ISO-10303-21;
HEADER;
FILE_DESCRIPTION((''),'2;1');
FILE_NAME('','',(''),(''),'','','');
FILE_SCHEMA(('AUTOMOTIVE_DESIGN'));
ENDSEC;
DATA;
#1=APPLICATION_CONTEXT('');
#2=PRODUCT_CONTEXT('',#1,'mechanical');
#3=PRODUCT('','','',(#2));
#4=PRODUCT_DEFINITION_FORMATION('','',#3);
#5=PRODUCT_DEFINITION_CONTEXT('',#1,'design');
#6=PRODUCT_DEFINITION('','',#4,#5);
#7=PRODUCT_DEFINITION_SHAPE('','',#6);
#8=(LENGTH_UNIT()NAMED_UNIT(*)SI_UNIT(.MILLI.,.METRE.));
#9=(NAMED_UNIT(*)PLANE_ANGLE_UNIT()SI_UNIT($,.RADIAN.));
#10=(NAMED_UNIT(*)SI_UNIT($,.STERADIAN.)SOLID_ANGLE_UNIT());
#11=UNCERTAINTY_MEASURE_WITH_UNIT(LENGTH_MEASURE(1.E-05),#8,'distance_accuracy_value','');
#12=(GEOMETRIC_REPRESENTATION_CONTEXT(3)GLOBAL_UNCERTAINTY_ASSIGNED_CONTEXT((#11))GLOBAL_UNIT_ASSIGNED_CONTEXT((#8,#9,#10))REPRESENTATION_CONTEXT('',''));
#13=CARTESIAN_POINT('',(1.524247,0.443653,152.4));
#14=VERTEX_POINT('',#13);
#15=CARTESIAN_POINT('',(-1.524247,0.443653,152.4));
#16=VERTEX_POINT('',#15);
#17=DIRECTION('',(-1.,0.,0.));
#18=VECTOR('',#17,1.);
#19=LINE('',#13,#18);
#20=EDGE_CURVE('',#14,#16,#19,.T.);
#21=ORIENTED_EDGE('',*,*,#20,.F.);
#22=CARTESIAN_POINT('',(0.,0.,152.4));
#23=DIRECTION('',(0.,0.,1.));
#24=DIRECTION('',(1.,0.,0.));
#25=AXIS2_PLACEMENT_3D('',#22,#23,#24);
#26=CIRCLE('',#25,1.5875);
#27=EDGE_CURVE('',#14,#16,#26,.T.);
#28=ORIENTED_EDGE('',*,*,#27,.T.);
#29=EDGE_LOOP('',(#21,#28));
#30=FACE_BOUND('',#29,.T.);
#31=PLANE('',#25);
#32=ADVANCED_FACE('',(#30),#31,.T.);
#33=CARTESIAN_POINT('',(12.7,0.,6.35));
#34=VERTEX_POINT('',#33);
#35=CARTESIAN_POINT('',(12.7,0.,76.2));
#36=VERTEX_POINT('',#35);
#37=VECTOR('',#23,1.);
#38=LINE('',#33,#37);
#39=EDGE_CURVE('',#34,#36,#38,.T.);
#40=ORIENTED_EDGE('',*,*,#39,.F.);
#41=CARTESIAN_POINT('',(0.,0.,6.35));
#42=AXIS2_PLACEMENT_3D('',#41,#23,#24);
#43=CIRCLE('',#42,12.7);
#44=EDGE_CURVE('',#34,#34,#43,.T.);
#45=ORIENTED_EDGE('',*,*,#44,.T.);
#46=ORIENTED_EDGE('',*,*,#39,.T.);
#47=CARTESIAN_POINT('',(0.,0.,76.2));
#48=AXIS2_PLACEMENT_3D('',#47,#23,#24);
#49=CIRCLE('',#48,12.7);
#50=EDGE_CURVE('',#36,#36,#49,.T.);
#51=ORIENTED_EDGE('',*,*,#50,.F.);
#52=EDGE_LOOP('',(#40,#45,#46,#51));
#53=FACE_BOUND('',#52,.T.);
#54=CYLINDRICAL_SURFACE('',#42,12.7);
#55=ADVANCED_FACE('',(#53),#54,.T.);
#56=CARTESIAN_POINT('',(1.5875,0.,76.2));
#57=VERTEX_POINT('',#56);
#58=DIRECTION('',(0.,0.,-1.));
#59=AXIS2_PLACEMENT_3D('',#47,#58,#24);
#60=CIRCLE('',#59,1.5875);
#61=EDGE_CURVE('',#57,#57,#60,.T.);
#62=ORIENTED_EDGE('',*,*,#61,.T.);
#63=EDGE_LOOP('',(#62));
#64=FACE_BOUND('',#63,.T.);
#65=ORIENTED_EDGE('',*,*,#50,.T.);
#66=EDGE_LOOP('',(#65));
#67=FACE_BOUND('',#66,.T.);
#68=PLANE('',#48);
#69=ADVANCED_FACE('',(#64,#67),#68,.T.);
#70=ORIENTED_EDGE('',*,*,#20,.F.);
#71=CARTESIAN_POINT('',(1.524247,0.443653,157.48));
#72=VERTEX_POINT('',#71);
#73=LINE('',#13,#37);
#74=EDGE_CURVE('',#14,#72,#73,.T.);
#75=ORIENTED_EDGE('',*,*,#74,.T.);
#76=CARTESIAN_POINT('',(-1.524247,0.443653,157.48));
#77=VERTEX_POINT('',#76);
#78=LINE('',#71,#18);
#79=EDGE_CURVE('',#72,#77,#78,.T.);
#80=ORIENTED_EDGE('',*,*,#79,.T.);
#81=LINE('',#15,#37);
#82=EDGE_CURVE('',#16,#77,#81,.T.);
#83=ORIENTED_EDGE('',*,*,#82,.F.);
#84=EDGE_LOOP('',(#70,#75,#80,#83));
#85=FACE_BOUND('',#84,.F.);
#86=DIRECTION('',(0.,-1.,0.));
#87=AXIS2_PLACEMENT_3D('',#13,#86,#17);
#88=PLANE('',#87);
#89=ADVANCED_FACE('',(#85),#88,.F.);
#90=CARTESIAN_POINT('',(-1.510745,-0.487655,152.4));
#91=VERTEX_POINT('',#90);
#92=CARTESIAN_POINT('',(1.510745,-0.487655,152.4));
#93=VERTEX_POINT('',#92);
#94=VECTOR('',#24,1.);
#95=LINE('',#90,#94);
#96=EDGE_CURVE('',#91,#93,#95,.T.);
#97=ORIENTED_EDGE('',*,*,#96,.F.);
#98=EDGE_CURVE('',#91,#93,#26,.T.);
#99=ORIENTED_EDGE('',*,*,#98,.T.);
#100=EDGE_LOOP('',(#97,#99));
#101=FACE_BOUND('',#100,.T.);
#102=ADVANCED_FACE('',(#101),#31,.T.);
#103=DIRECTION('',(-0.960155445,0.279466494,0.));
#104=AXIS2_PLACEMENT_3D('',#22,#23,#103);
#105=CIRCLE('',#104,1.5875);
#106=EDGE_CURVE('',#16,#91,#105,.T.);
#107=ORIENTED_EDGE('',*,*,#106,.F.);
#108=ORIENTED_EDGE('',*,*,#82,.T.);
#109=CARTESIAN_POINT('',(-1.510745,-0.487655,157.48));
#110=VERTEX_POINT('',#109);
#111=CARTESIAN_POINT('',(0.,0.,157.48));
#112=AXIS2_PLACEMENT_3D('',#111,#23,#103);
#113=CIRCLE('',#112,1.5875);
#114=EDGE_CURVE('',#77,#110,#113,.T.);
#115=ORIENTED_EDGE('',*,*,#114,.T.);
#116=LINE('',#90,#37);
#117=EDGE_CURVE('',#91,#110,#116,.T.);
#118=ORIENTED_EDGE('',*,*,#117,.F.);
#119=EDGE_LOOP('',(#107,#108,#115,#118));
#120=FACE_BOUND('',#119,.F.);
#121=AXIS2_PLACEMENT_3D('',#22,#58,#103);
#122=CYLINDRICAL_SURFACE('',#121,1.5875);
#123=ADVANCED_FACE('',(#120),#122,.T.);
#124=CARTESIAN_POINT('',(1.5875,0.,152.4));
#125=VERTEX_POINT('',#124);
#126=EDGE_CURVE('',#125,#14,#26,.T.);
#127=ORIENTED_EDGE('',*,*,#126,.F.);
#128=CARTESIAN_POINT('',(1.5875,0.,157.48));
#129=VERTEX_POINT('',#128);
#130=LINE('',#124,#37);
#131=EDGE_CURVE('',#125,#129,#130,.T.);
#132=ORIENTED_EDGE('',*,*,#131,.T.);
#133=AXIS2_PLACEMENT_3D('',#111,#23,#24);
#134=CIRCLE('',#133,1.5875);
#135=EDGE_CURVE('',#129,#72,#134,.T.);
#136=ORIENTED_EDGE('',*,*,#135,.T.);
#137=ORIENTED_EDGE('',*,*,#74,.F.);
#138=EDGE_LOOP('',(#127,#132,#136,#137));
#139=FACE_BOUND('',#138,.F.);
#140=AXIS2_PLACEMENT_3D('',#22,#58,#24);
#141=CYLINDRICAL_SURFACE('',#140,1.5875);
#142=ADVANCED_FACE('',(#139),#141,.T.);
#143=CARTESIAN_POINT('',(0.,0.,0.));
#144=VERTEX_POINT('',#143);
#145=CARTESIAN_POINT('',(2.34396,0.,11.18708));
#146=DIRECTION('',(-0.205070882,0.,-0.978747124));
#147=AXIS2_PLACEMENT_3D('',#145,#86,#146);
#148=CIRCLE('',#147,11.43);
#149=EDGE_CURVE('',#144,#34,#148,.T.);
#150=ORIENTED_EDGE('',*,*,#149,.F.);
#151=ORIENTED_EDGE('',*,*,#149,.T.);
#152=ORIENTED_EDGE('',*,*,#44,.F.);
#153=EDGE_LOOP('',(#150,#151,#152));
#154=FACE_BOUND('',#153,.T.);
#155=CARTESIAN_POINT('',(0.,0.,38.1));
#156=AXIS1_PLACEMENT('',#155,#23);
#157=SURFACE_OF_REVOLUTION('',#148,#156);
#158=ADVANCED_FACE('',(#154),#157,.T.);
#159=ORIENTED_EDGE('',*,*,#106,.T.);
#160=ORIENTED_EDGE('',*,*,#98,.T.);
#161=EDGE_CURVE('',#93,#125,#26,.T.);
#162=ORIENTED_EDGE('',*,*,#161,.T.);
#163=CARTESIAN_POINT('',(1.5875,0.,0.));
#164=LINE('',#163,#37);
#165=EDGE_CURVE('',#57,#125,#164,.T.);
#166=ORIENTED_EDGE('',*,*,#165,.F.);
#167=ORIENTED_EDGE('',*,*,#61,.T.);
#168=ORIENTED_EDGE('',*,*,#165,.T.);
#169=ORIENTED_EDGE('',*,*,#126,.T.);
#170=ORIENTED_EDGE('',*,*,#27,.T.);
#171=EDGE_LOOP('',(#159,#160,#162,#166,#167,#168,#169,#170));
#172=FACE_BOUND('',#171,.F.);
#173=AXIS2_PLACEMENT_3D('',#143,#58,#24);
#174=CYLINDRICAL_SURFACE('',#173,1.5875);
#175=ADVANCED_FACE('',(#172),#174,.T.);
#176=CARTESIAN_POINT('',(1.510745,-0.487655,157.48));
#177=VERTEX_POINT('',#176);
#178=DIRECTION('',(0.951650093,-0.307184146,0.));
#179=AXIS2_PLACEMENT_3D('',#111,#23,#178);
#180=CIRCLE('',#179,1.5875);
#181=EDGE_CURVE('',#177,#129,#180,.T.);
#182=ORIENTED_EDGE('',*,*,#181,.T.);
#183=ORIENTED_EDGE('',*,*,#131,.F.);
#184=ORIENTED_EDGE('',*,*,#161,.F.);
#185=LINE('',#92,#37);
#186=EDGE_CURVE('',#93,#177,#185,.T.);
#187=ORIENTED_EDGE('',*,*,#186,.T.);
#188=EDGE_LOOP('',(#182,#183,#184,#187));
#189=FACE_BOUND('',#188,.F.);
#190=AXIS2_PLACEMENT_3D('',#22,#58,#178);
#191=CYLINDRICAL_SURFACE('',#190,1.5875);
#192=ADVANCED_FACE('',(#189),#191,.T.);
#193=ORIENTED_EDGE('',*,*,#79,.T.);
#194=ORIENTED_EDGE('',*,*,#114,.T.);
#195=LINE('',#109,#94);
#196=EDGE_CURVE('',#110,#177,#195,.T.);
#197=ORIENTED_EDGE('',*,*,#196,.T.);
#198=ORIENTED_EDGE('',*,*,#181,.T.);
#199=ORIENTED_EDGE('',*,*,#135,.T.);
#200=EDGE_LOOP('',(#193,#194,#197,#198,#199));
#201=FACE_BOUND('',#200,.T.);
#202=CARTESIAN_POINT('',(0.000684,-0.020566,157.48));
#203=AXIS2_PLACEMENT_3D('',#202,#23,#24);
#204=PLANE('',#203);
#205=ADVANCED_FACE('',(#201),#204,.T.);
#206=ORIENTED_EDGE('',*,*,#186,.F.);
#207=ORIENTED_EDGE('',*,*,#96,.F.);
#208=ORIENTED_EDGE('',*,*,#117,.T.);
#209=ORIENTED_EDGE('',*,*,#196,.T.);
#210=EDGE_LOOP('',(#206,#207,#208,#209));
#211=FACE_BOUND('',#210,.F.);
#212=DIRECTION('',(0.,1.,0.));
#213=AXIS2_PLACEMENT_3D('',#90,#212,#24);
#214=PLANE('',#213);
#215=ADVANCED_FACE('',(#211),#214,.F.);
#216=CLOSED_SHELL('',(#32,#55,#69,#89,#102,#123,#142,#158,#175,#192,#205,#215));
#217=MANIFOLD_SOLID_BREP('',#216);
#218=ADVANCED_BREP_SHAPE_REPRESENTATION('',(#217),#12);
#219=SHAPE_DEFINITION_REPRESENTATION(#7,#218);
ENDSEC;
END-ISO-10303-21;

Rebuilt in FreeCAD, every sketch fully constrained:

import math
import FreeCAD as App
import Part
import Sketcher

V = App.Vector
Q = App.Units.Quantity

doc = App.newDocument("Part")
body = doc.addObject("PartDesign::Body", "Body")

# Sketch on XZ plane
sketch1 = doc.addObject("Sketcher::SketchObject", "Sketch")
body.addObject(sketch1)
sketch1.AttachmentSupport = (doc.XZ_Plane, [""])
sketch1.MapMode = "FlatFace"
sketch1.addGeometry([
    Part.LineSegment(V(0, 76, 0), V(0, 0, 0)),
    Part.ArcOfCircle(Part.Circle(V(2, 11, 0), V(0, 0, 1), 11), math.radians(-102), math.radians(-25)),
    Part.LineSegment(V(13, 6, 0), V(13, 76, 0)),
    Part.LineSegment(V(13, 76, 0), V(0, 76, 0)),
], False)
sketch1.addConstraint([
    Sketcher.Constraint("Coincident", 0, 2, 1, 1),
    Sketcher.Constraint("Coincident", 1, 2, 2, 1),
    Sketcher.Constraint("Coincident", 2, 2, 3, 1),
    Sketcher.Constraint("Coincident", 3, 2, 0, 1),
    Sketcher.Constraint("Vertical", 0),
    Sketcher.Constraint("Vertical", 2),
    Sketcher.Constraint("Horizontal", 3),
    Sketcher.Constraint("Coincident", 0, 2, -1, 1),
    Sketcher.Constraint("DistanceY", 0, 2, 0, 1, Q("3 in")),
    Sketcher.Constraint("Radius", 1, Q("0.45 in")),
    Sketcher.Constraint("DistanceX", 3, 2, 3, 1, Q("0.5 in")),
    Sketcher.Constraint("DistanceY", 2, 1, 2, 2, Q("2.75 in")),
])
revolution = doc.addObject("PartDesign::Revolution", "Revolution")
body.addObject(revolution)
revolution.Profile = sketch1
revolution.ReferenceAxis = (sketch1, ["V_Axis"])
revolution.Angle = 360

# Sketch on XY plane
sketch2 = doc.addObject("Sketcher::SketchObject", "Sketch001")
body.addObject(sketch2)
sketch2.AttachmentSupport = (doc.XY_Plane, [""])
sketch2.MapMode = "FlatFace"
sketch2.addGeometry(Part.Circle(V(0, 0, 0), V(0, 0, 1), 1.6), False)
sketch2.addConstraint([
    Sketcher.Constraint("Coincident", 0, 3, -1, 1),
    Sketcher.Constraint("Diameter", 0, Q("0.125 in")),
])
pad1 = doc.addObject("PartDesign::Pad", "Pad")
body.addObject(pad1)
pad1.Profile = sketch2
pad1.Length = Q("6 in")

# Sketch on XY plane
sketch3 = doc.addObject("Sketcher::SketchObject", "Sketch002")
body.addObject(sketch3)
sketch3.AttachmentSupport = (doc.XY_Plane, [""])
sketch3.MapMode = "FlatFace"
sketch3.AttachmentOffset = App.Placement(V(0, 0, 6 * 25.4), App.Rotation())
sketch3.addGeometry([
    Part.LineSegment(V(1.52, 0.44, 0), V(-1.52, 0.44, 0)),  # 0
    Part.ArcOfCircle(Part.Circle(V(0, 0, 0), V(0, 0, 1), 1.59), math.radians(164), math.radians(198)),  # 1
    Part.LineSegment(V(-1.51, -0.49, 0), V(1.51, -0.49, 0)),  # 2
    Part.ArcOfCircle(Part.Circle(V(0, 0, 0), V(0, 0, 1), 1.59), math.radians(-17.89), math.radians(0)),  # 3
    Part.ArcOfCircle(Part.Circle(V(0, 0, 0), V(0, 0, 1), 1.59), math.radians(0), math.radians(16.23)),  # 4
], False)
sketch3.addConstraint([
    Sketcher.Constraint("Coincident", 0, 2, 1, 1),
    Sketcher.Constraint("Coincident", 1, 2, 2, 1),
    Sketcher.Constraint("Coincident", 2, 2, 3, 1),
    Sketcher.Constraint("Tangent", 3, 2, 4, 1),
    Sketcher.Constraint("Coincident", 4, 2, 0, 1),
    Sketcher.Constraint("Horizontal", 0),
    Sketcher.Constraint("Horizontal", 2),
    Sketcher.Constraint("Coincident", 1, 3, -1, 1),
    Sketcher.Constraint("Coincident", 3, 3, -1, 1),
    Sketcher.Constraint("Equal", 1, 3),
    Sketcher.Constraint("Equal", 3, 4),
    Sketcher.Constraint("PointOnObject", 3, 2, -1),
    Sketcher.Constraint("Radius", 1, Q("0.0625 in")),
    Sketcher.Constraint("DistanceX", 2, 1, 2, 2, 3.021489),
    Sketcher.Constraint("DistanceX", 0, 2, 0, 1, 3.048494),
])
pad2 = doc.addObject("PartDesign::Pad", "Pad001")
body.addObject(pad2)
pad2.Profile = sketch3
pad2.Length = Q("0.2 in")

doc.recompute()
